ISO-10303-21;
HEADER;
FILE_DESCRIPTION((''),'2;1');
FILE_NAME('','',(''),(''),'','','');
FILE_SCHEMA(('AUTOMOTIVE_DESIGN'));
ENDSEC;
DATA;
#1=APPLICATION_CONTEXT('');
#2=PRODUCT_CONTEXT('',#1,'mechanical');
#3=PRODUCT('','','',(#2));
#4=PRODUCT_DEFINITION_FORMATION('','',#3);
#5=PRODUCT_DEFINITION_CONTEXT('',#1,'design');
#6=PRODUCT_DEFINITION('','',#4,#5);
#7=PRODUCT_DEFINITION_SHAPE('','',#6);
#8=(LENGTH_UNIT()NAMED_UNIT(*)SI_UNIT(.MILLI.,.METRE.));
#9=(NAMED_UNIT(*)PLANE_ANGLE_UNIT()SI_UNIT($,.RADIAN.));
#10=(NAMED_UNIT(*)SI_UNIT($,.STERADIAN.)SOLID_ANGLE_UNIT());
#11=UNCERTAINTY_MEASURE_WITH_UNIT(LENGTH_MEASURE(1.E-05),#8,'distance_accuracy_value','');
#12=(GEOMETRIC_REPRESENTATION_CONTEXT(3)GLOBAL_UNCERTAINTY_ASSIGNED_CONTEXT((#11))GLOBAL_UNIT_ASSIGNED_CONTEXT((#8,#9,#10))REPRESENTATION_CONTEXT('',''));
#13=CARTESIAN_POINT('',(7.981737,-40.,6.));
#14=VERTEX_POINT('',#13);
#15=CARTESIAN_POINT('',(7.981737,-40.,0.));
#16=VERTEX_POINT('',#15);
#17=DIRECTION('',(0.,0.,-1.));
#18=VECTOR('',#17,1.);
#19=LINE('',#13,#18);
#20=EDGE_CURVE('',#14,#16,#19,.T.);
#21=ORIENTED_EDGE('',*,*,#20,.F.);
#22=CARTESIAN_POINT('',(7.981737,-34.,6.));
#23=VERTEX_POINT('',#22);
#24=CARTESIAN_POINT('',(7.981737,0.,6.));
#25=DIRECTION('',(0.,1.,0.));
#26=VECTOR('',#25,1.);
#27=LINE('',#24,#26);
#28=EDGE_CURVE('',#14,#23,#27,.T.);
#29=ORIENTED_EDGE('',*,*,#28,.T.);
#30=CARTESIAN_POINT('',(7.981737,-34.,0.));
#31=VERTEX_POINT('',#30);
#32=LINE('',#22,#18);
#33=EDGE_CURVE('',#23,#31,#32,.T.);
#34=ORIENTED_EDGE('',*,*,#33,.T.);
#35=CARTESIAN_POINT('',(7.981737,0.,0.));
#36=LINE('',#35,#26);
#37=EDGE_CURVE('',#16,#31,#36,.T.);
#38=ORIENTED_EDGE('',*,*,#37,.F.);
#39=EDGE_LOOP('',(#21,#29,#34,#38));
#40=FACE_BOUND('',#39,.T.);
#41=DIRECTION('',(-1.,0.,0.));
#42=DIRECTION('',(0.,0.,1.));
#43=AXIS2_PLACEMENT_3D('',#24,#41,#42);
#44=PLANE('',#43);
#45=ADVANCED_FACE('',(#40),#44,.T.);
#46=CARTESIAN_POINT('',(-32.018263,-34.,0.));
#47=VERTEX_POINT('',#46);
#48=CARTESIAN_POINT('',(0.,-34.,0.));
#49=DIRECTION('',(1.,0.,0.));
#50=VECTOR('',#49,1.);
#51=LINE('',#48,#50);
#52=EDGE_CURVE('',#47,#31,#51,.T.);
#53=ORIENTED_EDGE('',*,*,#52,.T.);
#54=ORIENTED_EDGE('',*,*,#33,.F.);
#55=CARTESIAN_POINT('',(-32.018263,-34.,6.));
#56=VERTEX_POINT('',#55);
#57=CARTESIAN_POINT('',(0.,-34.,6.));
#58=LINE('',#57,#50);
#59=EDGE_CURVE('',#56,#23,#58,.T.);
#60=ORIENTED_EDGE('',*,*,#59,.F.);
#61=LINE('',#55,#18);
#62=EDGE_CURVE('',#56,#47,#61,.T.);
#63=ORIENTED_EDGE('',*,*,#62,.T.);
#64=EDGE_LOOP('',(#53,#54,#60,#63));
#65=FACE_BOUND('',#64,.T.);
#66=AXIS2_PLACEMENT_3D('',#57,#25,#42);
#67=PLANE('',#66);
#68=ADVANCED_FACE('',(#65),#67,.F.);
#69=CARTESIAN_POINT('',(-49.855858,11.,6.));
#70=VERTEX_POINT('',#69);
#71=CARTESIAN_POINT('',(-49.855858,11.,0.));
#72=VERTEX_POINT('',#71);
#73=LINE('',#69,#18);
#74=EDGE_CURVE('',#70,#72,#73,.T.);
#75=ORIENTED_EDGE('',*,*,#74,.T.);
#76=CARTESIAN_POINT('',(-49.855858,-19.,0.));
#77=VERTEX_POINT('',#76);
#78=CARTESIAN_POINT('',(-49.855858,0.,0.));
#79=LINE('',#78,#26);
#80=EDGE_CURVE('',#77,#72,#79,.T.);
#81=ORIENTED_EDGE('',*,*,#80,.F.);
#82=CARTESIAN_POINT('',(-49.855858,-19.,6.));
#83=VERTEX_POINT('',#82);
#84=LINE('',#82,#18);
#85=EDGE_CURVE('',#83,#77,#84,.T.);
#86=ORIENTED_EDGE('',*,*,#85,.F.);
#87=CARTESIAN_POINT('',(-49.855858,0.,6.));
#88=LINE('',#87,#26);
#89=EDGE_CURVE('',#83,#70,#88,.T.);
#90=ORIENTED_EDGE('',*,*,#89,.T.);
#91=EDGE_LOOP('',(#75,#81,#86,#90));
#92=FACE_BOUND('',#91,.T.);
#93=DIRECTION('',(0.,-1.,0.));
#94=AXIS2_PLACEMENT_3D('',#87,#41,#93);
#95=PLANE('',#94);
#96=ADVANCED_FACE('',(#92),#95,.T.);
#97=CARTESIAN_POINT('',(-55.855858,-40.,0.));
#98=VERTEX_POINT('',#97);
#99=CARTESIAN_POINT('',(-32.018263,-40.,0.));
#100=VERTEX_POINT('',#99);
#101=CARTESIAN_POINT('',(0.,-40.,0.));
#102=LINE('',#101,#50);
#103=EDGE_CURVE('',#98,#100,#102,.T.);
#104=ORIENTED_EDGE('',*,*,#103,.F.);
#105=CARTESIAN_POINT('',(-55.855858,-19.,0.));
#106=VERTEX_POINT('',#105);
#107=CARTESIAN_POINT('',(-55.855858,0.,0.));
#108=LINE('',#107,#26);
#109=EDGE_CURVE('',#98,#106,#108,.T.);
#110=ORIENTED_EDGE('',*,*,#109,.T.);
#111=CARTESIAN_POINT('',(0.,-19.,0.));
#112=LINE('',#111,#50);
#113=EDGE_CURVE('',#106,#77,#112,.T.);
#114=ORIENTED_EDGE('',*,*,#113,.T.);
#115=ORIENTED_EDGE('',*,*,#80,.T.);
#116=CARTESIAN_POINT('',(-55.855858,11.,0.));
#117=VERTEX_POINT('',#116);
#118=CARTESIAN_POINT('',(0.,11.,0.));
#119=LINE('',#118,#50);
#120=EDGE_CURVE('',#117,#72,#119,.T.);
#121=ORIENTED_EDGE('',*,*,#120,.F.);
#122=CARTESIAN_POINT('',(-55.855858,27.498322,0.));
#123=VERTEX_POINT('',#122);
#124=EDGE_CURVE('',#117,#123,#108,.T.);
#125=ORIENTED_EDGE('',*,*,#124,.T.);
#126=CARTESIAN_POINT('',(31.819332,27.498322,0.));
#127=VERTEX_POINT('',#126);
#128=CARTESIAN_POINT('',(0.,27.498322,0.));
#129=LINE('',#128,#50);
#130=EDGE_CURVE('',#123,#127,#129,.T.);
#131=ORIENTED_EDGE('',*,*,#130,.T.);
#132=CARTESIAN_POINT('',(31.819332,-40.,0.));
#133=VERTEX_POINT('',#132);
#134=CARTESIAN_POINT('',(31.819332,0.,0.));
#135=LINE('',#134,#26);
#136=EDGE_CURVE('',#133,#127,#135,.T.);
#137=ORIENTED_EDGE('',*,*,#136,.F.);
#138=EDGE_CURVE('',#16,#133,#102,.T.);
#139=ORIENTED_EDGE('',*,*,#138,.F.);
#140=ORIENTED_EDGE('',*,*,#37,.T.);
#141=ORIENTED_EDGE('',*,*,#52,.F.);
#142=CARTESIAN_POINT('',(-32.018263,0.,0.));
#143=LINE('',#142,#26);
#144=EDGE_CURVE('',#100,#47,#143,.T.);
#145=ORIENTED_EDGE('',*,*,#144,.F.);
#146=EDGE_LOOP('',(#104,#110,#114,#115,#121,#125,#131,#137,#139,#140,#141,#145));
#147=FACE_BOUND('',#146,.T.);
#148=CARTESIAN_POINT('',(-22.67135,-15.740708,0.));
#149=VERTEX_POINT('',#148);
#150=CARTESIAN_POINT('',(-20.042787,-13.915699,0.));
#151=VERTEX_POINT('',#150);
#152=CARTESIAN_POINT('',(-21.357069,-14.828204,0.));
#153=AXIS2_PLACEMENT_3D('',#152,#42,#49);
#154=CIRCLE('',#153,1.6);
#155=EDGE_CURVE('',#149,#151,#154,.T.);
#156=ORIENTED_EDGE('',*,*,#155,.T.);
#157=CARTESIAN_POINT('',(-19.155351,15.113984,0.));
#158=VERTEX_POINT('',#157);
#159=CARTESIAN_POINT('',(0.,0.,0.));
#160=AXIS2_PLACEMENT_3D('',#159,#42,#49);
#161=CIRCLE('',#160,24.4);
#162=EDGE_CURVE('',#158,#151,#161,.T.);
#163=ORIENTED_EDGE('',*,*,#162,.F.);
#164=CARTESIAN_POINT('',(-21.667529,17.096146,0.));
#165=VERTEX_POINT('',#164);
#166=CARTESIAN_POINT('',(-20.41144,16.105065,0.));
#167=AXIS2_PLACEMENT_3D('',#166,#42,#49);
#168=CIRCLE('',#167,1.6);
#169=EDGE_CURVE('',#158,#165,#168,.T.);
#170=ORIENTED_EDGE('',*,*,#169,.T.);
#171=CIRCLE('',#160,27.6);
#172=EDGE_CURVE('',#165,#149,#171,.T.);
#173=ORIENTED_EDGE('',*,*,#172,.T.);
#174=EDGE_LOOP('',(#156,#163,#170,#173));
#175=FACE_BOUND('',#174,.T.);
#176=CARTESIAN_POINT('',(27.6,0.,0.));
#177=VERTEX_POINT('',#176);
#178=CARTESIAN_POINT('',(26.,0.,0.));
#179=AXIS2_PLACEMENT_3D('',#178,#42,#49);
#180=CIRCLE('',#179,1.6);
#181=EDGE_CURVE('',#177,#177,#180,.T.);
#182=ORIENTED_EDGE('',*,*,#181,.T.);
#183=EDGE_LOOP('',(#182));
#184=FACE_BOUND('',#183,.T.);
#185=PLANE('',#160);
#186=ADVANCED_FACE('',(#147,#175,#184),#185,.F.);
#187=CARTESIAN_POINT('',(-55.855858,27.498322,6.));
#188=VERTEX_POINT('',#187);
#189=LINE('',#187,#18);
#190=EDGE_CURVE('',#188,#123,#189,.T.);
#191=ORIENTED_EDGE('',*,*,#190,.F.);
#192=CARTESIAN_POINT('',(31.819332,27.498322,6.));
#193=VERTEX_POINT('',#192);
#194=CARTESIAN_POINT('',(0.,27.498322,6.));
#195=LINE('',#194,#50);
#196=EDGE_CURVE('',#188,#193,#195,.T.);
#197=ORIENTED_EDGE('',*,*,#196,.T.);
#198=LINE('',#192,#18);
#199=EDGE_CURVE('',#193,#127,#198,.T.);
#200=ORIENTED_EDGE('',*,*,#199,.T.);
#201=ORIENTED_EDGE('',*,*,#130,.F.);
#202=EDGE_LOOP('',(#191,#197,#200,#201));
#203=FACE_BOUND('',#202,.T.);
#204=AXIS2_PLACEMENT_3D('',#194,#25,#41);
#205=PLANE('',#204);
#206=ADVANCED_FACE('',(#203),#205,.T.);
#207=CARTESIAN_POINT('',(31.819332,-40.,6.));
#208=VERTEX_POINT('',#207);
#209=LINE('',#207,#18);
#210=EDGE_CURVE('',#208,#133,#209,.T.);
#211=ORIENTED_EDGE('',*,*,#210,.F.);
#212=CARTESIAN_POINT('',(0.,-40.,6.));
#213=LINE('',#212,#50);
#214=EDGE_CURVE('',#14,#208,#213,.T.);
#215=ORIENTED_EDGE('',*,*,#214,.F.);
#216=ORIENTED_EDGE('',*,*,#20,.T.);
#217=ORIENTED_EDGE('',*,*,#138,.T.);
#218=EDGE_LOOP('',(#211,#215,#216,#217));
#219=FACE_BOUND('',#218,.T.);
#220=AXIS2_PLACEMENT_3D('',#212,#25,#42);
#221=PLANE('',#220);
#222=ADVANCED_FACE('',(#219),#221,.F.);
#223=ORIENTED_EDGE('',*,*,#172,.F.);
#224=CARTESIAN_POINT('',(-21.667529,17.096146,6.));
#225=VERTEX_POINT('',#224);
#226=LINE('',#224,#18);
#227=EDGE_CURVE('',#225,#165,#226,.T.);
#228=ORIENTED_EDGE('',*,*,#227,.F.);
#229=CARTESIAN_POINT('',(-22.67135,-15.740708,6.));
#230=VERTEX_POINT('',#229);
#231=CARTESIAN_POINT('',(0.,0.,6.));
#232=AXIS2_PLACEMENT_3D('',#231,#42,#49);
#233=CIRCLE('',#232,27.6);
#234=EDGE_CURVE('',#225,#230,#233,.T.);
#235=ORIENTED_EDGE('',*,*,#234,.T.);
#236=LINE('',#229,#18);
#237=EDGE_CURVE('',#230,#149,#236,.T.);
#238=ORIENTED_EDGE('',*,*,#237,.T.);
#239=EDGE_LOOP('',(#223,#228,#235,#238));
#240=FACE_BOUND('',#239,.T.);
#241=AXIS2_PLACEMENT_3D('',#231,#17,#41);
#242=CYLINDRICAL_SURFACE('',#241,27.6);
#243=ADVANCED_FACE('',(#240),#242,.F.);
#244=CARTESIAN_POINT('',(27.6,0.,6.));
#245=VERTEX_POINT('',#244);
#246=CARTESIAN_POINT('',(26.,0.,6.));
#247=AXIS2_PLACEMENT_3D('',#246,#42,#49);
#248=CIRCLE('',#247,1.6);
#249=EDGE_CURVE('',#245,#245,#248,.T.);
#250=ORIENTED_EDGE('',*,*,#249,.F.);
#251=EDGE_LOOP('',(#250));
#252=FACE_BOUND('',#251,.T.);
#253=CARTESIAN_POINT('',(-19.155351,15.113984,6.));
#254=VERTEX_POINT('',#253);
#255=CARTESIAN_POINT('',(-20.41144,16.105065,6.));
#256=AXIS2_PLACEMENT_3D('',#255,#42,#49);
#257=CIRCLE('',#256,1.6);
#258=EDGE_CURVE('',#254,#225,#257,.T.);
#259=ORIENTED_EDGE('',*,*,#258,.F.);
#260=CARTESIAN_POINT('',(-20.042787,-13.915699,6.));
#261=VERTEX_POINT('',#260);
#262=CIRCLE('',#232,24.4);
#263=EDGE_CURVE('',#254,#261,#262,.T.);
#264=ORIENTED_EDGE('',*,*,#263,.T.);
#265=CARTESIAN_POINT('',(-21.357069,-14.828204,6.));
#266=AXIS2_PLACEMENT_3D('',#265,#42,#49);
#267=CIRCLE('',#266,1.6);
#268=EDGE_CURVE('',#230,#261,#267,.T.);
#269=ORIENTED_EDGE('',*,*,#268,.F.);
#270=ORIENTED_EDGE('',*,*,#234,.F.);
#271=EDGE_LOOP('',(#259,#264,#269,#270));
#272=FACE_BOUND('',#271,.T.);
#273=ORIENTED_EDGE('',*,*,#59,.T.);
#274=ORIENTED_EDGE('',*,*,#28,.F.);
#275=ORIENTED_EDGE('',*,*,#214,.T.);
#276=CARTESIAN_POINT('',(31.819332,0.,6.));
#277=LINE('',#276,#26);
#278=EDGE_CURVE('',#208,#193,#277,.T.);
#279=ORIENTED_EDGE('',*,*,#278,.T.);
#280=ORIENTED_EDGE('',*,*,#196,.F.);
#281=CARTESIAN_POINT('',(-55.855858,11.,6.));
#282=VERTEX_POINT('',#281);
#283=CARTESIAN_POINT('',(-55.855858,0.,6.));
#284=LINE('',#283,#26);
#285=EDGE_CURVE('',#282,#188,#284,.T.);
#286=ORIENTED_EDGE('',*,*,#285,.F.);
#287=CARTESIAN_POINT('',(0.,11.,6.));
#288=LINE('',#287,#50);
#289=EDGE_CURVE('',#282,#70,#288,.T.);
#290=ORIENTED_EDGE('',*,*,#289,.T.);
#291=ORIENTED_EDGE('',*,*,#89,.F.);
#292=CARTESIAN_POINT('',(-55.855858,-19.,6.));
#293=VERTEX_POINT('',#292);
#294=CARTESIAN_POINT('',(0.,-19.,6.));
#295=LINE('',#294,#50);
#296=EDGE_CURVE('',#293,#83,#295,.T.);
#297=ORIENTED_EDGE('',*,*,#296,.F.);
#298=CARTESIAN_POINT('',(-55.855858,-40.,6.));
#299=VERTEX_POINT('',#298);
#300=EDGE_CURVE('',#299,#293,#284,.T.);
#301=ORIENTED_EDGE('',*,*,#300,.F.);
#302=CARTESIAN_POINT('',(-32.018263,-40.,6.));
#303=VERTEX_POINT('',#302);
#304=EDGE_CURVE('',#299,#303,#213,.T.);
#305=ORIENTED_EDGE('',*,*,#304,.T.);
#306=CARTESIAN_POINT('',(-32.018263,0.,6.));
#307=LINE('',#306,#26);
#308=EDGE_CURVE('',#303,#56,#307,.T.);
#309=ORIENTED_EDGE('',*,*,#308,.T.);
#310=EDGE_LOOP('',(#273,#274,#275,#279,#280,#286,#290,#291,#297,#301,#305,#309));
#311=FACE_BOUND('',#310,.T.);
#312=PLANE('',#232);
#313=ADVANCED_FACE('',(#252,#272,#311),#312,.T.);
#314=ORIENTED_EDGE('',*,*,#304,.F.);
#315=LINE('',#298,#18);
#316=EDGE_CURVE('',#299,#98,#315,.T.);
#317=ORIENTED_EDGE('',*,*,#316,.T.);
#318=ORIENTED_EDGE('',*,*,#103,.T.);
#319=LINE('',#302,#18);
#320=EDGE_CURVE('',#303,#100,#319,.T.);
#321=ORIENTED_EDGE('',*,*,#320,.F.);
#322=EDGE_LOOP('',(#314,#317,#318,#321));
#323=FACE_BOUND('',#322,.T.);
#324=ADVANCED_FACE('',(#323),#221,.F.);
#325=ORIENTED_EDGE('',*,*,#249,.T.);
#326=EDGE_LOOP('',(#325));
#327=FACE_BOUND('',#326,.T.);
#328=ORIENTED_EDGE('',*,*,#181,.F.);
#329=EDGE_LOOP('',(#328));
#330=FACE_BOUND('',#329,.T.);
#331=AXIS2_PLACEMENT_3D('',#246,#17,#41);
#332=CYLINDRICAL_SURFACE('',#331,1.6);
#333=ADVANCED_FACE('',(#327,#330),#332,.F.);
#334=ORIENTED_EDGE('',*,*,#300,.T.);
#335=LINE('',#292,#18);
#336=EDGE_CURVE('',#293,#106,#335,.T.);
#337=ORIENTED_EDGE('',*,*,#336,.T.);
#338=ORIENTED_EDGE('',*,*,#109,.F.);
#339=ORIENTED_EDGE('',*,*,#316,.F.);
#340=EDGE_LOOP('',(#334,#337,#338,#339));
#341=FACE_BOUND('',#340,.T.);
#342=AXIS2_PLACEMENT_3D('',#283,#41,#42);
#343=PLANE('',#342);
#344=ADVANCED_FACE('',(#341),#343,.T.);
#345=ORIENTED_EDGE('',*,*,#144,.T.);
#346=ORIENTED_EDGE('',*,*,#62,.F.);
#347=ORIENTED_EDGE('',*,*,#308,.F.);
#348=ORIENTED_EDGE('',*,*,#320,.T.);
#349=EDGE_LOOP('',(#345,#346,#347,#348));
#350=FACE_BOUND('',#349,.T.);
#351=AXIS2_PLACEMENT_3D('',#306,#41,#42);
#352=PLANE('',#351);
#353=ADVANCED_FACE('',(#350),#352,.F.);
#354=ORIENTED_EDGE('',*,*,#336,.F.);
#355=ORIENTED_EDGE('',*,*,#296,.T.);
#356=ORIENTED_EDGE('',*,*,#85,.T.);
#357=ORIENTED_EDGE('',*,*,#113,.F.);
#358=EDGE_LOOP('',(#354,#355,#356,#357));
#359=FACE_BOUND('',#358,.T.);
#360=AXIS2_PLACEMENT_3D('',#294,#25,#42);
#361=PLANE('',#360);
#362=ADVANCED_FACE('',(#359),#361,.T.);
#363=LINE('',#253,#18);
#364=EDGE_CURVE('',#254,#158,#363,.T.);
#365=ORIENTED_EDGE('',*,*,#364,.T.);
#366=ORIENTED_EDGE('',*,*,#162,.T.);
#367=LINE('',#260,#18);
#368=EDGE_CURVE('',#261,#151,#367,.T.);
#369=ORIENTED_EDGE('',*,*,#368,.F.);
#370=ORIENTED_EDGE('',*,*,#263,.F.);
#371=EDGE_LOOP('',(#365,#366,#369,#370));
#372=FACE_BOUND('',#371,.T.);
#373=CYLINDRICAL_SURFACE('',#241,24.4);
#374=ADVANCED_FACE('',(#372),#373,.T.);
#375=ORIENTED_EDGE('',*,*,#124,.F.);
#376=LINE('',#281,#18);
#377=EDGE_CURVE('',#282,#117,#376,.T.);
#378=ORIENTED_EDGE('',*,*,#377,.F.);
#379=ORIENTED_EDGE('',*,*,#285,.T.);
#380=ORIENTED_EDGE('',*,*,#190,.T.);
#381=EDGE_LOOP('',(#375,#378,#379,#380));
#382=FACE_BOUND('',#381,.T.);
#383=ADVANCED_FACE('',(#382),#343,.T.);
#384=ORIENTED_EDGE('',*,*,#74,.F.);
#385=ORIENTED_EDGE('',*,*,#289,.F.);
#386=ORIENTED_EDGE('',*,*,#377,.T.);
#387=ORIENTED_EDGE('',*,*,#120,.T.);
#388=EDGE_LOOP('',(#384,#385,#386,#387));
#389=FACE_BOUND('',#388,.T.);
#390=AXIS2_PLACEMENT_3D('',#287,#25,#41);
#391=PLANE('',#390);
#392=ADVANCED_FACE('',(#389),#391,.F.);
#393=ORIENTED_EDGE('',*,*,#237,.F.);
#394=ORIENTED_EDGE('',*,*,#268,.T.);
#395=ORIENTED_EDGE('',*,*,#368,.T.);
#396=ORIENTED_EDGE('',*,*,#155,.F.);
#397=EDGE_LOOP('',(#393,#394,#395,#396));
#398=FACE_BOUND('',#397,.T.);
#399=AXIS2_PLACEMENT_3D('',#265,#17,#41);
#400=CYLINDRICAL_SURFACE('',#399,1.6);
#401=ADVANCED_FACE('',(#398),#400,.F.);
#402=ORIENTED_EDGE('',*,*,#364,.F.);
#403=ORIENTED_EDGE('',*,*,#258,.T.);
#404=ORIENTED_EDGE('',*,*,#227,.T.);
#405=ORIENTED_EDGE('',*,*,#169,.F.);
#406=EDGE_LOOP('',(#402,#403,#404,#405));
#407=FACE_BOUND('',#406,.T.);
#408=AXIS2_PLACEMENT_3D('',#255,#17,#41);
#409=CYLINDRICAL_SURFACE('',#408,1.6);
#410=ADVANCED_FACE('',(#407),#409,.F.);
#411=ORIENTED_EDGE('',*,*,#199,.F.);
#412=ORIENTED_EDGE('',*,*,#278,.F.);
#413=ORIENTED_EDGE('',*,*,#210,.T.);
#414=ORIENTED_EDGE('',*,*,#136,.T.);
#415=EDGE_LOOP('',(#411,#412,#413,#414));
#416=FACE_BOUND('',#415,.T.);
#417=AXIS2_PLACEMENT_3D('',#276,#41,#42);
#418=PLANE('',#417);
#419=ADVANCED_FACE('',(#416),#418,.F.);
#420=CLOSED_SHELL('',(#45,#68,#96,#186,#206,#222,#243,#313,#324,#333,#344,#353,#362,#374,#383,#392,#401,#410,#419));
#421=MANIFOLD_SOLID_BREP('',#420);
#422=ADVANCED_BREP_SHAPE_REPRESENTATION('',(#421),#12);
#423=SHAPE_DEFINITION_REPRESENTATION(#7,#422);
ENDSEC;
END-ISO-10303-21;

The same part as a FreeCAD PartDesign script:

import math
import FreeCAD as App
import Part
import Sketcher

V = App.Vector
Q = App.Units.Quantity


def add_polygon(sketch, points):
    """Adds a closed chain of lines whose ends are joined by coincident constraints."""
    first, n = sketch.GeometryCount, len(points)
    for a, b in zip(points, points[1:] + points[:1]):
        sketch.addGeometry(Part.LineSegment(App.Vector(*a, 0), App.Vector(*b, 0)), False)
    for i in range(n):
        sketch.addConstraint(Sketcher.Constraint("Coincident", first + i, 2, first + (i + 1) % n, 1))

doc = App.newDocument("Part")
params = doc.addObject("Spreadsheet::Sheet", "Params")
for row, (alias, value) in enumerate([
    ("sketch1_diameter", "3.2 mm"),
    ("sketch1_radius", "27.6 mm"),
    ("sketch1_width", "40 mm"),
    ("sketch1_width2", "6 mm"),
    ("sketch1_height", "21 mm"),
    ("pad1_length", "6 mm"),
], start=1):
    params.set(f"A{row}", alias)
    params.set(f"B{row}", "=" + value)
    params.setAlias(f"B{row}", alias)

body = doc.addObject("PartDesign::Body", "Body")

sketch1 = body.newObject("Sketcher::SketchObject", "Sketch")
sketch1.AttachmentSupport = (doc.getObject("XY_Plane"), [""])
sketch1.MapMode = "FlatFace"
add_polygon(sketch1, [(-55.9, -19), (-55.9, -40), (-32, -40), (-32, -34), (8, -34), (8, -40), (31.8, -40), (31.8, 27.5), (-55.9, 27.5), (-55.9, 11), (-49.9, 11), (-49.9, -19)])
sketch1.addGeometry(Part.Circle(V(26, 0, 0), V(0, 0, 1), 1.6), False)
sketch1.addGeometry(Part.ArcOfCircle(Part.Circle(V(0, 0, 0), V(0, 0, 1), 27.6), math.radians(-167), math.radians(-145)), False)
sketch1.addGeometry(Part.ArcOfCircle(Part.Circle(V(0, 0, 0), V(0, 0, 1), 27.6), math.radians(167), math.radians(193)), False)
sketch1.addGeometry(Part.ArcOfCircle(Part.Circle(V(0, 0, 0), V(0, 0, 1), 27.6), math.radians(142), math.radians(167)), False)
sketch1.addGeometry(Part.ArcOfCircle(Part.Circle(V(-20.4, 16.1, 0), V(0, 0, 1), 1.6), math.radians(-38), math.radians(142)), False)
sketch1.addGeometry(Part.ArcOfCircle(Part.Circle(V(0, 0, 0), V(0, 0, 1), 24.4), math.radians(142), math.radians(167)), False)
sketch1.addGeometry(Part.ArcOfCircle(Part.Circle(V(0, 0, 0), V(0, 0, 1), 24.4), math.radians(167), math.radians(193)), False)
sketch1.addGeometry(Part.ArcOfCircle(Part.Circle(V(0, 0, 0), V(0, 0, 1), 24.4), math.radians(-167), math.radians(-145)), False)
sketch1.addGeometry(Part.ArcOfCircle(Part.Circle(V(-21.4, -14.8, 0), V(0, 0, 1), 1.6), math.radians(-145), math.radians(35)), False)
sketch1.addConstraint(Sketcher.Constraint("Tangent", 13, 1, 14, 2))
sketch1.addConstraint(Sketcher.Constraint("Tangent", 14, 1, 15, 2))
sketch1.addConstraint(Sketcher.Constraint("Tangent", 15, 1, 16, 2))
sketch1.addConstraint(Sketcher.Constraint("Tangent", 16, 1, 17, 1))
sketch1.addConstraint(Sketcher.Constraint("Tangent", 17, 2, 18, 1))
sketch1.addConstraint(Sketcher.Constraint("Tangent", 18, 2, 19, 1))
sketch1.addConstraint(Sketcher.Constraint("Tangent", 19, 2, 20, 2))
sketch1.addConstraint(Sketcher.Constraint("Tangent", 20, 1, 13, 2))
sketch1.addConstraint(Sketcher.Constraint("Vertical", 0))
sketch1.addConstraint(Sketcher.Constraint("Horizontal", 1))
sketch1.addConstraint(Sketcher.Constraint("Vertical", 2))
sketch1.addConstraint(Sketcher.Constraint("Horizontal", 3))
sketch1.addConstraint(Sketcher.Constraint("Vertical", 4))
sketch1.addConstraint(Sketcher.Constraint("Horizontal", 5))
sketch1.addConstraint(Sketcher.Constraint("Vertical", 6))
sketch1.addConstraint(Sketcher.Constraint("Horizontal", 7))
sketch1.addConstraint(Sketcher.Constraint("Vertical", 8))
sketch1.addConstraint(Sketcher.Constraint("Horizontal", 9))
sketch1.addConstraint(Sketcher.Constraint("Vertical", 10))
sketch1.addConstraint(Sketcher.Constraint("Horizontal", 11))
sketch1.addConstraint(Sketcher.Constraint("Coincident", 13, 3, -1, 1))
sketch1.addConstraint(Sketcher.Constraint("Coincident", 15, 3, -1, 1))
sketch1.addConstraint(Sketcher.Constraint("Coincident", 17, 3, -1, 1))
sketch1.addConstraint(Sketcher.Constraint("Coincident", 19, 3, -1, 1))
sketch1.addConstraint(Sketcher.Constraint("Equal", 12, 16))
sketch1.addConstraint(Sketcher.Constraint("PointOnObject", 12, 3, -1))
sketch1.addConstraint(Sketcher.Constraint("Horizontal", 1, 2, 4, 2))
sketch1.addConstraint(Sketcher.Constraint("Vertical", 0, 2, 7, 2))
sketch1.addConstraint(Sketcher.Constraint("Vertical", 13, 1, 14, 1))
sketch1.addConstraint(Sketcher.Constraint("Vertical", 17, 2, 18, 2))
sketch1.addConstraint(Sketcher.Constraint("Equal", 1, 5))
sketch1.addConstraint(Sketcher.Constraint("Equal", 11, 2))
sketch1.addConstraint(Sketcher.Constraint("Diameter", 12, Q("3.2 mm")))
sketch1.addConstraint(Sketcher.Constraint("Radius", 13, Q("27.6 mm")))
sketch1.addConstraint(Sketcher.Constraint("DistanceX", 3, 1, 3, 2, Q("40 mm")))
sketch1.addConstraint(Sketcher.Constraint("DistanceX", 9, 1, 9, 2, Q("6 mm")))
sketch1.addConstraint(Sketcher.Constraint("DistanceY", 0, 2, 0, 1, Q("21 mm")))
sketch1.addConstraint(Sketcher.Constraint("DistanceY", 10, 2, 10, 1, Q("30 mm")))
sketch1.addConstraint(Sketcher.Constraint("DistanceX", -1, 1, 12, 3, Q("26 mm")))
sketch1.addConstraint(Sketcher.Constraint("DistanceY", 0, 2, -1, 1, Q("40 mm")))
sketch1.addConstraint(Sketcher.Constraint("DistanceY", 13, 1, 17, 2, Q("12 mm")))
sketch1.addConstraint(Sketcher.Constraint("DistanceX", 7, 2, 7, 1, Q("87.67519 mm")))
sketch1.addConstraint(Sketcher.Constraint("DistanceY", 19, 2, -1, 1, Q("13.915699 mm")))
sketch1.addConstraint(Sketcher.Constraint("DistanceY", 6, 1, 6, 2, Q("67.498322 mm")))
sketch1.addConstraint(Sketcher.Constraint("DistanceX", 16, 3, -1, 1, Q("20.41144 mm")))
sketch1.addConstraint(Sketcher.Constraint("DistanceX", 0, 2, -1, 1, Q("55.855858 mm")))
sketch1.addConstraint(Sketcher.Constraint("DistanceY", 13, 1, -1, 1, Q("6.369231 mm")))
sketch1.setExpression("Constraints[44]", "Params.sketch1_diameter")
sketch1.setExpression("Constraints[45]", "Params.sketch1_radius")
sketch1.setExpression("Constraints[46]", "Params.sketch1_width")
sketch1.setExpression("Constraints[47]", "Params.sketch1_width2")
sketch1.setExpression("Constraints[48]", "Params.sketch1_height")
pad1 = body.newObject("PartDesign::Pad", "Pad")
pad1.Profile = sketch1
pad1.setExpression("Length", "Params.pad1_length")

doc.recompute()
